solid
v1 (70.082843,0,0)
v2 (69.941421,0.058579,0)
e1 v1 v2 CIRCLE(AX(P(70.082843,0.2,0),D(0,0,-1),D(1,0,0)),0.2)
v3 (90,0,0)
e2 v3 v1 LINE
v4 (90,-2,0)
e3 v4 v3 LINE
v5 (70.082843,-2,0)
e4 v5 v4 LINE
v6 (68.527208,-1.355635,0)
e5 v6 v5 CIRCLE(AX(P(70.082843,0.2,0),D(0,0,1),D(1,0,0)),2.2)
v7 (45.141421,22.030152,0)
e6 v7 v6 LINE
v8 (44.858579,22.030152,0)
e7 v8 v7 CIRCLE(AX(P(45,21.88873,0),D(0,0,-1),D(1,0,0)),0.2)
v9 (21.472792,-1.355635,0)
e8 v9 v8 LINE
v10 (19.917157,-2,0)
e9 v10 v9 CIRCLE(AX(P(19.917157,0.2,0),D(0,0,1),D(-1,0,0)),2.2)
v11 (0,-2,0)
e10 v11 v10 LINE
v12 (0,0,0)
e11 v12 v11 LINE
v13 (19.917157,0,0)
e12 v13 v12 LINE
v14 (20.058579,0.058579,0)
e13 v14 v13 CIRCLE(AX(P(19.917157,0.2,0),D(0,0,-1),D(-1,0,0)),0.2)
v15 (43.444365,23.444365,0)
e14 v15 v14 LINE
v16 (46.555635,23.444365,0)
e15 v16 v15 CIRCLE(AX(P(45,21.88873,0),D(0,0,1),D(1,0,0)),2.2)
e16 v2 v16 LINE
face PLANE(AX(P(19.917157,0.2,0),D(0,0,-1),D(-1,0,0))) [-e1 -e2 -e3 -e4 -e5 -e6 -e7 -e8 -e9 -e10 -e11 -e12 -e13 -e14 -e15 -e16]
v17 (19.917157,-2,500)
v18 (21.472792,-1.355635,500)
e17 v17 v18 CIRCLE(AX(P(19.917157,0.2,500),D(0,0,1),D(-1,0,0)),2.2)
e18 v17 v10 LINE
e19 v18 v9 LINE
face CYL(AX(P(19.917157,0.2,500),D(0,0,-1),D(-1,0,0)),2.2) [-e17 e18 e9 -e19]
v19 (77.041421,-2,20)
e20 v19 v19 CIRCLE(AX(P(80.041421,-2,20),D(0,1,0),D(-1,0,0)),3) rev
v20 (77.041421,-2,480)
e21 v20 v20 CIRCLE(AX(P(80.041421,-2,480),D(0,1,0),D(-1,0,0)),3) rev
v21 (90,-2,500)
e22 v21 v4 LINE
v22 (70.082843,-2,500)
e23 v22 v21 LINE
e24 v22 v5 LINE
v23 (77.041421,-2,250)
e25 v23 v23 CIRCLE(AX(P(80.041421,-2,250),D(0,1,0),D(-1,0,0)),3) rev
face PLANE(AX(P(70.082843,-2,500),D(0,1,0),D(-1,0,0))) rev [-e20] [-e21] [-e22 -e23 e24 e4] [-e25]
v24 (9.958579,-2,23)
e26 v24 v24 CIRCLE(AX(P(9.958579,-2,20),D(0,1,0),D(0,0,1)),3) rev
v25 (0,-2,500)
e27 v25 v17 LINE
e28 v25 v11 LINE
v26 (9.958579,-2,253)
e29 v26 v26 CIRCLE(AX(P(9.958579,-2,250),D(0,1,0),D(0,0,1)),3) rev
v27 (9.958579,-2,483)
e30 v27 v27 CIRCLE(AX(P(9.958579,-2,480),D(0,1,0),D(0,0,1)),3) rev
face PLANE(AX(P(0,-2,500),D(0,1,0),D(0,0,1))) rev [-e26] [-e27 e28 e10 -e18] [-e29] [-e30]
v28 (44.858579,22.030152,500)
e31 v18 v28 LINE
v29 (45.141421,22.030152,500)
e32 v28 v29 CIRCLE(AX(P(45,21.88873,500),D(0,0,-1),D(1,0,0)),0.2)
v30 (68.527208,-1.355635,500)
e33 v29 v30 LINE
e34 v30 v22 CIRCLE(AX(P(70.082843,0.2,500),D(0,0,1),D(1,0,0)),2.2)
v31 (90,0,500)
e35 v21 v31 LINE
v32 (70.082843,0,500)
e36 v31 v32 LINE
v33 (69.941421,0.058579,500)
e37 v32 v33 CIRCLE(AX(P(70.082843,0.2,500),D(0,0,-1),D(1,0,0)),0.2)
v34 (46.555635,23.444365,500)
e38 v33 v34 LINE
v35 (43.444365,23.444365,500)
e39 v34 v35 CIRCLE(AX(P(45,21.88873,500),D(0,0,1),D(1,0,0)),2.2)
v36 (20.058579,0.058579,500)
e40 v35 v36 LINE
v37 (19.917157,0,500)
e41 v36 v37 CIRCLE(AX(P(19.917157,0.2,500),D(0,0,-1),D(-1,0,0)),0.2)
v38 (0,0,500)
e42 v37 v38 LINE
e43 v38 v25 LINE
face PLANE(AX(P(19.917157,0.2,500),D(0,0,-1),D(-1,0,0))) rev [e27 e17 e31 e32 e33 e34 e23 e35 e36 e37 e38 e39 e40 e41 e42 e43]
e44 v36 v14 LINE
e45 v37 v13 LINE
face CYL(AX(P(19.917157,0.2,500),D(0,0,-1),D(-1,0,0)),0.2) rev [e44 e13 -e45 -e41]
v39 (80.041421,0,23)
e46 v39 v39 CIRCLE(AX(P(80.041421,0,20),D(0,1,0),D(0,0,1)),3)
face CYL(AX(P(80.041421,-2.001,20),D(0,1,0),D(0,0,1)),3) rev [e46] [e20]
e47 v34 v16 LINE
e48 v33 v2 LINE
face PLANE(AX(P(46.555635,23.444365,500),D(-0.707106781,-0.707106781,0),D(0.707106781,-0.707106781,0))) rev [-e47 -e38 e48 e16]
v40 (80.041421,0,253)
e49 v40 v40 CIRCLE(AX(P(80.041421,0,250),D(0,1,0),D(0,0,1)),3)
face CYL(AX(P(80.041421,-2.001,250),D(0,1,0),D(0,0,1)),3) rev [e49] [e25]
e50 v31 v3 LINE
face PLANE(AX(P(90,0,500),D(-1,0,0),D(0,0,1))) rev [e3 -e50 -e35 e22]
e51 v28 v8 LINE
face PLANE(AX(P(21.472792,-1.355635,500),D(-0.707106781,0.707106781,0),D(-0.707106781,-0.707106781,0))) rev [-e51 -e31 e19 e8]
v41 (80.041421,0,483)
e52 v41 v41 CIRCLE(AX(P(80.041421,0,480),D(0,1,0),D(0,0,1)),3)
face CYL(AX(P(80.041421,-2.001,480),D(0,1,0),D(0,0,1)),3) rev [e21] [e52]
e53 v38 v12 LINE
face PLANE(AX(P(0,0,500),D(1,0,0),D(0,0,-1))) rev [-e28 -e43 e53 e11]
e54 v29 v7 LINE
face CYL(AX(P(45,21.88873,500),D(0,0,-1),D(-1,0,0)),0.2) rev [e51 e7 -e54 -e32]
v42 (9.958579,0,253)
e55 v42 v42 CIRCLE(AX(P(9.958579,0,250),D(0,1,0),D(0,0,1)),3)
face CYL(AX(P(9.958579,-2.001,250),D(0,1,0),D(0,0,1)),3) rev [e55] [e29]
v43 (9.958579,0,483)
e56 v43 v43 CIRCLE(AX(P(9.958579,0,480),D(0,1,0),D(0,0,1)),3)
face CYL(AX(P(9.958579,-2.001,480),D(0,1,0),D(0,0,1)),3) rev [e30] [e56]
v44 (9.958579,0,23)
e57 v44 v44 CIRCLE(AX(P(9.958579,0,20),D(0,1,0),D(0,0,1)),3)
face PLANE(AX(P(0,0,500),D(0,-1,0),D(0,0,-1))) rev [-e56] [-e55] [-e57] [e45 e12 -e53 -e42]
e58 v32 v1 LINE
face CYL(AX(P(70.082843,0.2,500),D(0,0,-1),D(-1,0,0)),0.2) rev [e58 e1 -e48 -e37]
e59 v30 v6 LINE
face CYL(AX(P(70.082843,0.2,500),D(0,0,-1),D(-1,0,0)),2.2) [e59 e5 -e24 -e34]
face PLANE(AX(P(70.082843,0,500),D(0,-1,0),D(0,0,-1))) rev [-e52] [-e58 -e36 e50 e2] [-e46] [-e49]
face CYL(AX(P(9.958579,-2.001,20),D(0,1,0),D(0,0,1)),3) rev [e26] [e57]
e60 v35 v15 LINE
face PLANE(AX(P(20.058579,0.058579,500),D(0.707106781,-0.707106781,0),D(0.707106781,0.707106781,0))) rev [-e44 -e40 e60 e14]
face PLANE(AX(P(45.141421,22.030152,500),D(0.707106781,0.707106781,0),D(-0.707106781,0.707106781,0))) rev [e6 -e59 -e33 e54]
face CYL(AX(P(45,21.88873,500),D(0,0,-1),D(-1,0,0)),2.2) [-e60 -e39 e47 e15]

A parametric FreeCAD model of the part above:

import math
import FreeCAD as App
import Part
import Sketcher
from FreeCAD import Vector

doc = App.newDocument("Part")
body = doc.addObject("PartDesign::Body", "Body")

sketch1 = doc.addObject("Sketcher::SketchObject", "Sketch")
body.addObject(sketch1)
sketch1.AttachmentSupport = (doc.XY_Plane, [""])
sketch1.MapMode = "FlatFace"
sketch1.addGeometry([
    Part.LineSegment(Vector(19.92, 0, 0), Vector(0, 0, 0)),
    Part.LineSegment(Vector(0, 0, 0), Vector(0, -2, 0)),
    Part.LineSegment(Vector(0, -2, 0), Vector(19.92, -2, 0)),
    Part.ArcOfCircle(Part.Circle(Vector(19.92, 0.2, 0), Vector(0, 0, 1), 2.2), math.radians(-90), math.radians(-45)),
    Part.LineSegment(Vector(21.47, -1.36, 0), Vector(44.86, 22.03, 0)),
    Part.ArcOfCircle(Part.Circle(Vector(45, 21.89, 0), Vector(0, 0, 1), 0.2), math.radians(45), math.radians(135)),
    Part.LineSegment(Vector(45.14, 22.03, 0), Vector(68.53, -1.36, 0)),
    Part.ArcOfCircle(Part.Circle(Vector(70.08, 0.2, 0), Vector(0, 0, 1), 2.2), math.radians(-135), math.radians(-90)),
    Part.LineSegment(Vector(70.08, -2, 0), Vector(90, -2, 0)),
    Part.LineSegment(Vector(90, -2, 0), Vector(90, 0, 0)),
    Part.LineSegment(Vector(90, 0, 0), Vector(70.08, 0, 0)),
    Part.ArcOfCircle(Part.Circle(Vector(70.08, 0.2, 0), Vector(0, 0, 1), 0.2), math.radians(-135), math.radians(-90)),
    Part.LineSegment(Vector(69.94, 0.06, 0), Vector(46.56, 23.44, 0)),
    Part.ArcOfCircle(Part.Circle(Vector(45, 21.89, 0), Vector(0, 0, 1), 2.2), math.radians(45), math.radians(135)),
    Part.LineSegment(Vector(43.44, 23.44, 0), Vector(20.06, 0.06, 0)),
    Part.ArcOfCircle(Part.Circle(Vector(19.92, 0.2, 0), Vector(0, 0, 1), 0.2), math.radians(-90), math.radians(-45)),
], False)
sketch1.addConstraint([
    Sketcher.Constraint("Coincident", 0, 2, 1, 1),
    Sketcher.Constraint("Coincident", 1, 2, 2, 1),
    Sketcher.Constraint("Tangent", 2, 2, 3, 1),
    Sketcher.Constraint("Tangent", 3, 2, 4, 1),
    Sketcher.Constraint("Tangent", 4, 2, 5, 2),
    Sketcher.Constraint("Tangent", 5, 1, 6, 1),
    Sketcher.Constraint("Tangent", 6, 2, 7, 1),
    Sketcher.Constraint("Tangent", 7, 2, 8, 1),
    Sketcher.Constraint("Coincident", 8, 2, 9, 1),
    Sketcher.Constraint("Coincident", 9, 2, 10, 1),
    Sketcher.Constraint("Tangent", 10, 2, 11, 2),
    Sketcher.Constraint("Tangent", 11, 1, 12, 1),
    Sketcher.Constraint("Tangent", 12, 2, 13, 1),
    Sketcher.Constraint("Tangent", 13, 2, 14, 1),
    Sketcher.Constraint("Tangent", 14, 2, 15, 2),
    Sketcher.Constraint("Tangent", 15, 1, 0, 1),
    Sketcher.Constraint("Horizontal", 0),
    Sketcher.Constraint("Vertical", 1),
    Sketcher.Constraint("Horizontal", 2),
    Sketcher.Constraint("Horizontal", 8),
    Sketcher.Constraint("Vertical", 9),
    Sketcher.Constraint("Horizontal", 10),
    Sketcher.Constraint("Coincident", 0, 2, -1, 1),
    Sketcher.Constraint("Coincident", 11, 3, 7, 3),
    Sketcher.Constraint("Coincident", 13, 3, 5, 3),
    Sketcher.Constraint("Coincident", 15, 3, 3, 3),
    Sketcher.Constraint("Equal", 3, 7),
    Sketcher.Constraint("Equal", 5, 11),
    Sketcher.Constraint("Equal", 7, 13),
    Sketcher.Constraint("Equal", 11, 15),
    Sketcher.Constraint("PointOnObject", 9, 2, -1),
    Sketcher.Constraint("Perpendicular", 4, 6),
    Sketcher.Constraint("Horizontal", 3, 2, 6, 2),
    Sketcher.Constraint("Equal", 2, 8),
    Sketcher.Constraint("Radius", 3, 2.2),
    Sketcher.Constraint("Radius", 5, 0.2),
    Sketcher.Constraint("DistanceX", -1, 1, 5, 3, 45.0),
    Sketcher.Constraint("DistanceX", 0, 2, 0, 1, 19.917157),
])
pad1 = doc.addObject("PartDesign::Pad", "Pad")
body.addObject(pad1)
pad1.Profile = sketch1
pad1.Length = 500

sketch2 = doc.addObject("Sketcher::SketchObject", "Sketch001")
body.addObject(sketch2)
sketch2.AttachmentSupport = (doc.XZ_Plane, [""])
sketch2.MapMode = "FlatFace"
sketch2.addGeometry(Part.Circle(Vector(10, 20, 0), Vector(0, 0, 1), 3), False)
sketch2.addConstraint([
    Sketcher.Constraint("Diameter", 0, 6.0),
    Sketcher.Constraint("DistanceY", -1, 1, 0, 3, 20.0),
    Sketcher.Constraint("DistanceX", -1, 1, 0, 3, 9.958579),
])
pocket1 = doc.addObject("PartDesign::Pocket", "Pocket")
body.addObject(pocket1)
pocket1.Profile = sketch2
pocket1.Type = "UpToFirst"
pocket1.Reversed = True

sketch3 = doc.addObject("Sketcher::SketchObject", "Sketch002")
body.addObject(sketch3)
sketch3.AttachmentSupport = (doc.XZ_Plane, [""])
sketch3.MapMode = "FlatFace"
sketch3.addGeometry(Part.Circle(Vector(80, 20, 0), Vector(0, 0, 1), 3), False)
sketch3.addConstraint([
    Sketcher.Constraint("Diameter", 0, 6.0),
    Sketcher.Constraint("DistanceY", -1, 1, 0, 3, 20.0),
    Sketcher.Constraint("DistanceX", -1, 1, 0, 3, 80.041421),
])
pocket2 = doc.addObject("PartDesign::Pocket", "Pocket001")
body.addObject(pocket2)
pocket2.Profile = sketch3
pocket2.Type = "UpToFirst"
pocket2.Reversed = True

sketch4 = doc.addObject("Sketcher::SketchObject", "Sketch003")
body.addObject(sketch4)
sketch4.AttachmentSupport = (doc.XZ_Plane, [""])
sketch4.MapMode = "FlatFace"
sketch4.addGeometry(Part.Circle(Vector(10, 250, 0), Vector(0, 0, 1), 3), False)
sketch4.addConstraint([
    Sketcher.Constraint("Diameter", 0, 6.0),
    Sketcher.Constraint("DistanceY", -1, 1, 0, 3, 250.0),
    Sketcher.Constraint("DistanceX", -1, 1, 0, 3, 9.958579),
])
pocket3 = doc.addObject("PartDesign::Pocket", "Pocket002")
body.addObject(pocket3)
pocket3.Profile = sketch4
pocket3.Type = "UpToFirst"
pocket3.Reversed = True

sketch5 = doc.addObject("Sketcher::SketchObject", "Sketch004")
body.addObject(sketch5)
sketch5.AttachmentSupport = (doc.XZ_Plane, [""])
sketch5.MapMode = "FlatFace"
sketch5.addGeometry(Part.Circle(Vector(80, 250, 0), Vector(0, 0, 1), 3), False)
sketch5.addConstraint([
    Sketcher.Constraint("Diameter", 0, 6.0),
    Sketcher.Constraint("DistanceY", -1, 1, 0, 3, 250.0),
    Sketcher.Constraint("DistanceX", -1, 1, 0, 3, 80.041421),
])
pocket4 = doc.addObject("PartDesign::Pocket", "Pocket003")
body.addObject(pocket4)
pocket4.Profile = sketch5
pocket4.Type = "UpToFirst"
pocket4.Reversed = True

sketch6 = doc.addObject("Sketcher::SketchObject", "Sketch005")
body.addObject(sketch6)
sketch6.AttachmentSupport = (doc.XZ_Plane, [""])
sketch6.MapMode = "FlatFace"
sketch6.addGeometry(Part.Circle(Vector(10, 480, 0), Vector(0, 0, 1), 3), False)
sketch6.addConstraint([
    Sketcher.Constraint("Diameter", 0, 6.0),
    Sketcher.Constraint("DistanceY", -1, 1, 0, 3, 480.0),
    Sketcher.Constraint("DistanceX", -1, 1, 0, 3, 9.958579),
])
pocket5 = doc.addObject("PartDesign::Pocket", "Pocket004")
body.addObject(pocket5)
pocket5.Profile = sketch6
pocket5.Type = "UpToFirst"
pocket5.Reversed = True

sketch7 = doc.addObject("Sketcher::SketchObject", "Sketch006")
body.addObject(sketch7)
sketch7.AttachmentSupport = (doc.XZ_Plane, [""])
sketch7.MapMode = "FlatFace"
sketch7.addGeometry(Part.Circle(Vector(80, 480, 0), Vector(0, 0, 1), 3), False)
sketch7.addConstraint([
    Sketcher.Constraint("Diameter", 0, 6.0),
    Sketcher.Constraint("DistanceY", -1, 1, 0, 3, 480.0),
    Sketcher.Constraint("DistanceX", -1, 1, 0, 3, 80.041421),
])
pocket6 = doc.addObject("PartDesign::Pocket", "Pocket005")
body.addObject(pocket6)
pocket6.Profile = sketch7
pocket6.Type = "UpToFirst"
pocket6.Reversed = True

doc.recompute()
